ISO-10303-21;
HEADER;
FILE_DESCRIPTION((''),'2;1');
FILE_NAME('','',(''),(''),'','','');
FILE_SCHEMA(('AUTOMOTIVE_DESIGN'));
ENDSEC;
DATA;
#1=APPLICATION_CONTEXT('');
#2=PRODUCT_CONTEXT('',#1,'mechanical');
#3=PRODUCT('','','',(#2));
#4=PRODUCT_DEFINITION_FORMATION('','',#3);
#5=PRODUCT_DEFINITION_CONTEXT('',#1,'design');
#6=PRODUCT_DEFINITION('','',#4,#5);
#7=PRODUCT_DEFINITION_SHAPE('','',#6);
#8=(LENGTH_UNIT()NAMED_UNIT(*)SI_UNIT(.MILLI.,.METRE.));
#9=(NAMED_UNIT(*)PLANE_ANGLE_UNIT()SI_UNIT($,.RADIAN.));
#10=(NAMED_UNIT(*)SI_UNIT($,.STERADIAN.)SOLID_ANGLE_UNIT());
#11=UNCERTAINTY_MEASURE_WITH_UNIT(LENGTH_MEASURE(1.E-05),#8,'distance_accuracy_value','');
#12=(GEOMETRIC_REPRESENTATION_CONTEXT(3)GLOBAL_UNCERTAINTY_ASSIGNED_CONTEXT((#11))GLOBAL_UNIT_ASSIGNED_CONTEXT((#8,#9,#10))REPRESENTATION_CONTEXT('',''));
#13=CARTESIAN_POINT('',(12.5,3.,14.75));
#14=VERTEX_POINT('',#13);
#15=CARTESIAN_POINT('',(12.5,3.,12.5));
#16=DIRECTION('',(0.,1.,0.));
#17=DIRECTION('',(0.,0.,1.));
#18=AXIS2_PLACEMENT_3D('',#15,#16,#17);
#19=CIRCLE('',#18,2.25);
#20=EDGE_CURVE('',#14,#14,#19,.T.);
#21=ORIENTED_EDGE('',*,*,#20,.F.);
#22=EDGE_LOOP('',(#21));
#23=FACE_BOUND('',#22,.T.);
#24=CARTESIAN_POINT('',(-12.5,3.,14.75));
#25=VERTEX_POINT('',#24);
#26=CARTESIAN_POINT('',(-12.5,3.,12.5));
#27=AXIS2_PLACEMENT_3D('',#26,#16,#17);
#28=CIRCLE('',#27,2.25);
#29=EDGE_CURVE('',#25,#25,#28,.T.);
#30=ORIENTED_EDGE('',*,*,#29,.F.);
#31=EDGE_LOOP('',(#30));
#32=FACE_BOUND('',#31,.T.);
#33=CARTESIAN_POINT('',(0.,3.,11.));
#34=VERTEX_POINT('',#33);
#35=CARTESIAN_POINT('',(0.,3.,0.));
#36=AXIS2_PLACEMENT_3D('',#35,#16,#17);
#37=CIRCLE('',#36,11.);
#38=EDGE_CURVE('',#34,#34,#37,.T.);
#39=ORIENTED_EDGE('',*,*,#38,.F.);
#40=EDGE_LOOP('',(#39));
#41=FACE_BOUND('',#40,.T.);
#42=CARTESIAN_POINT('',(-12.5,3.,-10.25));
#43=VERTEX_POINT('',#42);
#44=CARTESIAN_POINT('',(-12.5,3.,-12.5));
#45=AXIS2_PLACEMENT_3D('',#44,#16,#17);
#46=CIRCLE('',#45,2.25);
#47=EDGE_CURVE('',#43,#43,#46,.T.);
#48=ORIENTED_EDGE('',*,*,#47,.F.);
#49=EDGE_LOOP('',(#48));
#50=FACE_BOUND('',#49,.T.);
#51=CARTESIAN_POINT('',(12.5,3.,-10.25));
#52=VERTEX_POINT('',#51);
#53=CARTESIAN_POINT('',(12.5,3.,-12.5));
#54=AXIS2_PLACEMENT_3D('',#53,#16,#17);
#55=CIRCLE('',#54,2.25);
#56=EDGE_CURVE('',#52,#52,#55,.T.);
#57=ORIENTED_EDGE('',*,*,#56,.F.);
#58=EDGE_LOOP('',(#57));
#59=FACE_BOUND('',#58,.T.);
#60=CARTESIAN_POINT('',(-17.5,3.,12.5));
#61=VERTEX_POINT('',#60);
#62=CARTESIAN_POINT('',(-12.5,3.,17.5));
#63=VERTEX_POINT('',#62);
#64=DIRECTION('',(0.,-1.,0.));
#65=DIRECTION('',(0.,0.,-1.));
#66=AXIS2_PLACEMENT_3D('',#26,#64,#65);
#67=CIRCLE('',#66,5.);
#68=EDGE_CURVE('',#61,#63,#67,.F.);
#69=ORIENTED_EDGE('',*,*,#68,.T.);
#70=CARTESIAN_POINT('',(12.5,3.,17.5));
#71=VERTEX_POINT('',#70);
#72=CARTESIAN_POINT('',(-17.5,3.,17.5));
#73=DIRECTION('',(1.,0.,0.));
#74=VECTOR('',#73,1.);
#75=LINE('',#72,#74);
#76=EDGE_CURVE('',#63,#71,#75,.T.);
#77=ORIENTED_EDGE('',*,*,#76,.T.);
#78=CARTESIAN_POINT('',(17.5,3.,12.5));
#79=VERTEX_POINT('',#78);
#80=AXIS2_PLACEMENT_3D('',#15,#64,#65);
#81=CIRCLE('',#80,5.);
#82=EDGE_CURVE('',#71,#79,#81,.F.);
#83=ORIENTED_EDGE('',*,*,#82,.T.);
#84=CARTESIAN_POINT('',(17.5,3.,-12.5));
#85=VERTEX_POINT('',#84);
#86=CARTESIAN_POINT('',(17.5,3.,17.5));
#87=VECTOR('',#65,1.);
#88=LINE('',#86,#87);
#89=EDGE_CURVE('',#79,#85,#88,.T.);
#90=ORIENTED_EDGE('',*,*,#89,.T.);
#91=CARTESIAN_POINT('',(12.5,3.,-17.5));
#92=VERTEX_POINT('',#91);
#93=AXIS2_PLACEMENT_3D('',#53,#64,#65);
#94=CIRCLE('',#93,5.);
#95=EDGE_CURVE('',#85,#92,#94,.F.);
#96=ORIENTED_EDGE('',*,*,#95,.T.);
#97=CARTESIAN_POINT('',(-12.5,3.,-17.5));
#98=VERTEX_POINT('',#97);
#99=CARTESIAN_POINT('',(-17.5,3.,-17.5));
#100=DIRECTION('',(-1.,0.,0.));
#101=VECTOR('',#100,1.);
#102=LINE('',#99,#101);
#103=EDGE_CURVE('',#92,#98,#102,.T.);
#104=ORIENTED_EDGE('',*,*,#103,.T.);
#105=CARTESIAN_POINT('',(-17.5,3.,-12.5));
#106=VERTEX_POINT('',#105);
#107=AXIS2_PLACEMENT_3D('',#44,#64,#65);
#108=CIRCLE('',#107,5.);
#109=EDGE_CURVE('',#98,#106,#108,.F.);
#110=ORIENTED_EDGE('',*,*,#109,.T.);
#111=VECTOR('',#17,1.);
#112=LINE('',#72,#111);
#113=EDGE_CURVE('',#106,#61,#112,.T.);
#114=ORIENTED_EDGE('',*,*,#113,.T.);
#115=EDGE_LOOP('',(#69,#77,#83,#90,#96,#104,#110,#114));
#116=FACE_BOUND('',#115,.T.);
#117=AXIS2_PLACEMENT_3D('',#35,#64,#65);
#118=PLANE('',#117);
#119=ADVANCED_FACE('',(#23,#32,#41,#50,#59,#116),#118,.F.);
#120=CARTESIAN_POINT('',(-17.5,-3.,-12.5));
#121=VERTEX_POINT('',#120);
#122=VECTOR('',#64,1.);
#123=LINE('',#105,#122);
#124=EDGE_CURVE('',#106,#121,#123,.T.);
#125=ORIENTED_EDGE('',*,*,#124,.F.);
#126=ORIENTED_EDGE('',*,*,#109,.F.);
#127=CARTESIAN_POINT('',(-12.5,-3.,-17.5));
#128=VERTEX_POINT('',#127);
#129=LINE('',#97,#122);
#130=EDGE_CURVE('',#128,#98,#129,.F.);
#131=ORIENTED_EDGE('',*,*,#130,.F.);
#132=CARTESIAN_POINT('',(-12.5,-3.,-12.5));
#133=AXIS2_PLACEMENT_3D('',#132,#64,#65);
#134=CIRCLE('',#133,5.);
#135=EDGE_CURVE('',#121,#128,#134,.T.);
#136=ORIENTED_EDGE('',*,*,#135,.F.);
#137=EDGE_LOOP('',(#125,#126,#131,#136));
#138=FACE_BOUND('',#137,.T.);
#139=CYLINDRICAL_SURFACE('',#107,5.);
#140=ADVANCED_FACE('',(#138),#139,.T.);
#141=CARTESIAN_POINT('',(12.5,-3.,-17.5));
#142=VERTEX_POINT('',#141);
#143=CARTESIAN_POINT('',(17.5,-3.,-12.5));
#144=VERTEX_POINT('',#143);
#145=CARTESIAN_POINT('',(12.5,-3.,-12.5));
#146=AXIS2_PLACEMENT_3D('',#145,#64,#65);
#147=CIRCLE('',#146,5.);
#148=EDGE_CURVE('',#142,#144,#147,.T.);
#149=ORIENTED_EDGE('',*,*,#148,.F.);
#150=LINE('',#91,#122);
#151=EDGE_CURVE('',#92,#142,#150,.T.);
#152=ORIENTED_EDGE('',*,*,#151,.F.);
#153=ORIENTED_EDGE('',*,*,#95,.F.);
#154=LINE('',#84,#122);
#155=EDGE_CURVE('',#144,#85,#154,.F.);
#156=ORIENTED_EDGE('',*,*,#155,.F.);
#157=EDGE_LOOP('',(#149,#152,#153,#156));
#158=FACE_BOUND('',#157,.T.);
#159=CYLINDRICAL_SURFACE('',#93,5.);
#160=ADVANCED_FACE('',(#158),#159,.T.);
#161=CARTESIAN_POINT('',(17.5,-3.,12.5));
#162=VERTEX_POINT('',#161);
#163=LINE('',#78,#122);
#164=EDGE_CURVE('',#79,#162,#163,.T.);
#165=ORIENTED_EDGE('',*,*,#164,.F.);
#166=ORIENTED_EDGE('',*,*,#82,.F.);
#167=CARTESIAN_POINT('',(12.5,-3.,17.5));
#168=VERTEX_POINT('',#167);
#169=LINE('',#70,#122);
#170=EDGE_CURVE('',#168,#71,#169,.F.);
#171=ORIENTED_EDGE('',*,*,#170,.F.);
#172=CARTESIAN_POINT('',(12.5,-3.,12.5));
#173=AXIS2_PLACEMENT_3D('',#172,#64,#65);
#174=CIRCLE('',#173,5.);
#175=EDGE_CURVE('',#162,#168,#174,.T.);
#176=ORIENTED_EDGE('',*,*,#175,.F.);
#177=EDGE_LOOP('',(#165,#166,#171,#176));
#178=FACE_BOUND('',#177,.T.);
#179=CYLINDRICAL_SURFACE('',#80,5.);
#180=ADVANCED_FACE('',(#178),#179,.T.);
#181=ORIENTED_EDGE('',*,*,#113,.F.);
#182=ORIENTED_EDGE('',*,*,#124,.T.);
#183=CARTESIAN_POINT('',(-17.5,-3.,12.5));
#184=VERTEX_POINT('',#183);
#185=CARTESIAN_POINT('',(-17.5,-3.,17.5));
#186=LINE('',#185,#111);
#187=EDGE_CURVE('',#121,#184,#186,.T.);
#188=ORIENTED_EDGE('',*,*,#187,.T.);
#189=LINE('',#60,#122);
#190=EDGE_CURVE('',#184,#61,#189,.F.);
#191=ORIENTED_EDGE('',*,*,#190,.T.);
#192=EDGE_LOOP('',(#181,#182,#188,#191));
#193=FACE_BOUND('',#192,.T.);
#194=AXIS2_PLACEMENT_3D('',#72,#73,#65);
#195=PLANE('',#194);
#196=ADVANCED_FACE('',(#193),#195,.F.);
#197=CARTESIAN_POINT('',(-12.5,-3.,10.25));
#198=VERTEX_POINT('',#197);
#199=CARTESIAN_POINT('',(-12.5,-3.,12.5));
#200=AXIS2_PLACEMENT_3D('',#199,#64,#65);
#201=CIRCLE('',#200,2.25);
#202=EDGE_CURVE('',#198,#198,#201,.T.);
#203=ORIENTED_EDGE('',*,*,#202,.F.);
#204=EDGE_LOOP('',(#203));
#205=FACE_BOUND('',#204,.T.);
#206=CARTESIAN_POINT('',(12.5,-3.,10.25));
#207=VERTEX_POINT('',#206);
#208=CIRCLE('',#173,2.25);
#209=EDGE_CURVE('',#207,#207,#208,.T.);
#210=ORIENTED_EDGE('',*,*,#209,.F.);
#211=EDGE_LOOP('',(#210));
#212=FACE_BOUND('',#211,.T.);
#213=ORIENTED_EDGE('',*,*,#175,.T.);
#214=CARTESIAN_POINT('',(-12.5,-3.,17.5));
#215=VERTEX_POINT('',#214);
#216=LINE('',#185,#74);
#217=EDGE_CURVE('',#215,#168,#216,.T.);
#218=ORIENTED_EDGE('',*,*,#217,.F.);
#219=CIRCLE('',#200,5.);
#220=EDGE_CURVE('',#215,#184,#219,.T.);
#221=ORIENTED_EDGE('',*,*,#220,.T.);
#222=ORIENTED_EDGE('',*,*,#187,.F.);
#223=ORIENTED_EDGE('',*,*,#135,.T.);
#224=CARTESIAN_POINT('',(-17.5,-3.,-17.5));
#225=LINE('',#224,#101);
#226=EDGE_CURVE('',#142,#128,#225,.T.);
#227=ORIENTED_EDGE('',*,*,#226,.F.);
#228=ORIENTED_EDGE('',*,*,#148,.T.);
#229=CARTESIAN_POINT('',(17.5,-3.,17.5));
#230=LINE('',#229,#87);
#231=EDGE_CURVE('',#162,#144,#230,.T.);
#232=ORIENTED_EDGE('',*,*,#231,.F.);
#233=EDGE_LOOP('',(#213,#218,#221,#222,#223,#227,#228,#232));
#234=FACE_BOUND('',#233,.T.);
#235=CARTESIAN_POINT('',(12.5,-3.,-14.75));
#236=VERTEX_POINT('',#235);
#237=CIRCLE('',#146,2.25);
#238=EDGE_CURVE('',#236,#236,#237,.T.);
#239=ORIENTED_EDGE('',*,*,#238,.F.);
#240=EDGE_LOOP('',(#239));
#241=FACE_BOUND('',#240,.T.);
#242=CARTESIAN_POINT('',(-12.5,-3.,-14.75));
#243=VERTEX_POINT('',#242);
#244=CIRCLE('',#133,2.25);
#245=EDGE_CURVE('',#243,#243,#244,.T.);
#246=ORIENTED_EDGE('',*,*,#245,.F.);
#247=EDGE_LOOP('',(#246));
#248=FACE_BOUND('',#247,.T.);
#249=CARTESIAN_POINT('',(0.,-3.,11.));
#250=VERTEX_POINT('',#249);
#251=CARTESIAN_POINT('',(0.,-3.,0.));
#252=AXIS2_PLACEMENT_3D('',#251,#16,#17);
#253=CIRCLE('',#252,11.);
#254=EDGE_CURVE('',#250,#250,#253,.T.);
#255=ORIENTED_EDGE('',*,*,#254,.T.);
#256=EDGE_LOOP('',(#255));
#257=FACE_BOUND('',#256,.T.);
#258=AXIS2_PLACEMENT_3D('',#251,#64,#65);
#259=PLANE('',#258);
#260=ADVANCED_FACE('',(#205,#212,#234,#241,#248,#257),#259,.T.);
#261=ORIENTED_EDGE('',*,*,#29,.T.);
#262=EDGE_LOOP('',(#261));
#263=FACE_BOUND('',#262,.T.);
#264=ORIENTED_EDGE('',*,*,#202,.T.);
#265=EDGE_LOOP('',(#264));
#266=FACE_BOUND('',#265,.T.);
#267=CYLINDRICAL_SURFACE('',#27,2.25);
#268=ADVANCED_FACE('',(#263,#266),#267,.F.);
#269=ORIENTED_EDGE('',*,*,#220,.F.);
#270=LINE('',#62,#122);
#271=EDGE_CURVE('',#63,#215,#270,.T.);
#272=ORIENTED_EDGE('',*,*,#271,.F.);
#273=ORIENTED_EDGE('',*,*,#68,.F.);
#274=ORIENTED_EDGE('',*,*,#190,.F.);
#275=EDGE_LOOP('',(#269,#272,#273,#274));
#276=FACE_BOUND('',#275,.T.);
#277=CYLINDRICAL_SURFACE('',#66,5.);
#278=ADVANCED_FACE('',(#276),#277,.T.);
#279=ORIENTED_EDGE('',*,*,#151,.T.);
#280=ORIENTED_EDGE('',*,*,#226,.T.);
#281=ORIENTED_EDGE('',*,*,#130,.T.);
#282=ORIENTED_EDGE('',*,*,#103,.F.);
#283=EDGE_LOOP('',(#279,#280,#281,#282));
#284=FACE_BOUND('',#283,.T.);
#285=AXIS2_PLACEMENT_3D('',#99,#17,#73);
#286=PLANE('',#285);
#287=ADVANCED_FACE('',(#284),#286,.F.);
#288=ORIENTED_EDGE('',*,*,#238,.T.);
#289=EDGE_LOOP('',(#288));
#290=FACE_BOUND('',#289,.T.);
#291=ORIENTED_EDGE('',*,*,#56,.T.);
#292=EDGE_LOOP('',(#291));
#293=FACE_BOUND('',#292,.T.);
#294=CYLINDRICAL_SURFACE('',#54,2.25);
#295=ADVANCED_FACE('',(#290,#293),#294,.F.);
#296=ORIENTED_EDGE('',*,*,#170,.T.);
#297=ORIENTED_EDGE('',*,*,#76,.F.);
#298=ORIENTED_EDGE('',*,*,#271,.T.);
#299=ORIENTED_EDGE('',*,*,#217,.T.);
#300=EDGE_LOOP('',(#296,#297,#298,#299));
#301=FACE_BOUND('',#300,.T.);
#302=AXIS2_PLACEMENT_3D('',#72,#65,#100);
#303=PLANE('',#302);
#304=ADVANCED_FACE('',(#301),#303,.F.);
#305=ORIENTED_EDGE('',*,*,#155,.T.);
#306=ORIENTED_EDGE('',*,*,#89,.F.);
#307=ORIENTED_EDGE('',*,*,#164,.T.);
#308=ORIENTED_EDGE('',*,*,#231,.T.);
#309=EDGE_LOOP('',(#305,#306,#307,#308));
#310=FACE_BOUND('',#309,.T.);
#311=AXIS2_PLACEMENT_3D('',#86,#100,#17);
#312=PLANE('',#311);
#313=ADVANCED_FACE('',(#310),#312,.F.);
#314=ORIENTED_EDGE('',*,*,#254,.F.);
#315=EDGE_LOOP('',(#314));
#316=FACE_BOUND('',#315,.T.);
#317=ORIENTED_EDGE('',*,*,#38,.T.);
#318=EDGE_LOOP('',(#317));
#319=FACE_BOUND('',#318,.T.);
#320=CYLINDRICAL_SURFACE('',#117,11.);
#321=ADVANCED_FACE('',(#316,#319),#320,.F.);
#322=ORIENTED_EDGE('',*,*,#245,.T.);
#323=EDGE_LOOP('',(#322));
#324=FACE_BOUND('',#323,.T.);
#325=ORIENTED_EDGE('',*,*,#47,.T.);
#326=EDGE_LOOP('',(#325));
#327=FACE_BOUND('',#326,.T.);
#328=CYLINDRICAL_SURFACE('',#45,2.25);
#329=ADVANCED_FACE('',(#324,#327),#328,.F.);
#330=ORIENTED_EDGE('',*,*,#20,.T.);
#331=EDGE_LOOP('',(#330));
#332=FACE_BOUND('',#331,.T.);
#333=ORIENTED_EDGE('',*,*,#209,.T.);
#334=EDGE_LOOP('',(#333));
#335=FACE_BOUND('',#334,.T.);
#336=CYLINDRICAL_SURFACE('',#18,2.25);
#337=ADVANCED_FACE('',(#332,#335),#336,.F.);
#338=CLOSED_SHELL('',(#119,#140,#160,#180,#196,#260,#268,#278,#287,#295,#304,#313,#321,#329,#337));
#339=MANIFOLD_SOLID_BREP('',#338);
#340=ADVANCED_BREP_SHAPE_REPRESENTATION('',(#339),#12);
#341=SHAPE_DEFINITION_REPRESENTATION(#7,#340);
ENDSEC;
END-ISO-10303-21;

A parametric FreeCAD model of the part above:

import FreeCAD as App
import Part
import Sketcher
from FreeCAD import Vector


def edges_at(feature, points):
    """Names of the edges that pass closest to the given points."""
    edges = feature.Shape.Edges
    near = lambda p: min(range(len(edges)), key=lambda i: edges[i].distToShape(Part.Vertex(*p))[0])
    return sorted({f"Edge{near(p) + 1}" for p in points})


def add_polygon(sketch, points):
    """Adds a closed chain of lines whose ends are joined by coincident constraints."""
    first, n = sketch.GeometryCount, len(points)
    for a, b in zip(points, points[1:] + points[:1]):
        sketch.addGeometry(Part.LineSegment(App.Vector(*a, 0), App.Vector(*b, 0)), False)
    for i in range(n):
        sketch.addConstraint(Sketcher.Constraint("Coincident", first + i, 2, first + (i + 1) % n, 1))

doc = App.newDocument("Part")
params = doc.addObject("Spreadsheet::Sheet", "Params")
for row, (alias, value) in enumerate([
    ("sketch1_diameter", "22 mm"),
    ("sketch1_width", "35 mm"),
    ("pad1_length", "6 mm"),
    ("sketch2_diameter", "4.5 mm"),
    ("hole_diameter", "4.5 mm"),
    ("fillet_radius", "5 mm"),
], start=1):
    params.set(f"A{row}", alias)
    params.set(f"B{row}", "=" + value)
    params.setAlias(f"B{row}", alias)

body = doc.addObject("PartDesign::Body", "Body")

# Sketch on XZ plane
sketch1 = body.newObject("Sketcher::SketchObject", "Sketch")
sketch1.AttachmentSupport = (doc.getObject("XZ_Plane"), [""])
sketch1.MapMode = "FlatFace"
add_polygon(sketch1, [(-18, -18), (-18, 18), (18, 18), (18, -18)])  # lines 0-3
sketch1.addGeometry(Part.Circle(Vector(0, 0, 0), Vector(0, 0, 1), 11), False)  # 4
sketch1.addConstraint([
    Sketcher.Constraint("Vertical", 0),
    Sketcher.Constraint("Horizontal", 1),
    Sketcher.Constraint("Vertical", 2),
    Sketcher.Constraint("Horizontal", 3),
    Sketcher.Constraint("Coincident", 4, 3, -1, 1),
    Sketcher.Constraint("Symmetric", 0, 2, 2, 2, -1, 1),
    Sketcher.Constraint("Equal", 3, 0),
    Sketcher.Constraint("Diameter", 4, 22.0),
    Sketcher.Constraint("DistanceX", 1, 1, 1, 2, 35.0),
])
sketch1.setExpression("Constraints[11]", "Params.sketch1_diameter")
sketch1.setExpression("Constraints[12]", "Params.sketch1_width")
pad1 = body.newObject("PartDesign::Pad", "Pad")
pad1.Profile = sketch1
pad1.setExpression("Length", "Params.pad1_length")
pad1.Midplane = True

# Sketch on XZ plane
sketch2 = body.newObject("Sketcher::SketchObject", "Sketch001")
sketch2.AttachmentSupport = (doc.getObject("XZ_Plane"), [""])
sketch2.MapMode = "FlatFace"
sketch2.AttachmentOffset = App.Placement(Vector(0, 0, -3), App.Rotation())
sketch2.addGeometry([
    Part.Circle(Vector(12.5, -12.5, 0), Vector(0, 0, 1), 2.2),
    Part.Circle(Vector(-12.5, -12.5, 0), Vector(0, 0, 1), 2.2),
    Part.Circle(Vector(-12.5, 12.5, 0), Vector(0, 0, 1), 2.2),
    Part.Circle(Vector(12.5, 12.5, 0), Vector(0, 0, 1), 2.2),
], False)
sketch2.addConstraint([
    Sketcher.Constraint("Equal", 0, 1),
    Sketcher.Constraint("Equal", 1, 2),
    Sketcher.Constraint("Equal", 2, 3),
    Sketcher.Constraint("Symmetric", 0, 3, 2, 3, -1, 1),
    Sketcher.Constraint("Symmetric", 1, 3, 3, 3, -1, 1),
    Sketcher.Constraint("Symmetric", 0, 3, 1, 3, -2),
    Sketcher.Constraint("Diameter", 0, 4.5),
    Sketcher.Constraint("DistanceX", 1, 3, 0, 3, 25.0),
    Sketcher.Constraint("DistanceY", 1, 3, 2, 3, 25.0),
])
sketch2.setExpression("Constraints[6]", "Params.sketch2_diameter")
doc.recompute()
hole = body.newObject("PartDesign::Hole", "Hole")
hole.Profile = sketch2
hole.ThreadType = "None"
hole.setExpression("Diameter", "Params.hole_diameter")
hole.DepthType = "ThroughAll"
hole.Reversed = True
doc.recompute()

fillet = body.newObject("PartDesign::Fillet", "Fillet")
fillet.Base = (hole, edges_at(hole, [
    (17.5, 0, 17.5),
    (-17.5, 0, 17.5),
    (-17.5, 0, -17.5),
    (17.5, 0, -17.5),
]))
fillet.setExpression("Radius", "Params.fillet_radius")

doc.recompute()
